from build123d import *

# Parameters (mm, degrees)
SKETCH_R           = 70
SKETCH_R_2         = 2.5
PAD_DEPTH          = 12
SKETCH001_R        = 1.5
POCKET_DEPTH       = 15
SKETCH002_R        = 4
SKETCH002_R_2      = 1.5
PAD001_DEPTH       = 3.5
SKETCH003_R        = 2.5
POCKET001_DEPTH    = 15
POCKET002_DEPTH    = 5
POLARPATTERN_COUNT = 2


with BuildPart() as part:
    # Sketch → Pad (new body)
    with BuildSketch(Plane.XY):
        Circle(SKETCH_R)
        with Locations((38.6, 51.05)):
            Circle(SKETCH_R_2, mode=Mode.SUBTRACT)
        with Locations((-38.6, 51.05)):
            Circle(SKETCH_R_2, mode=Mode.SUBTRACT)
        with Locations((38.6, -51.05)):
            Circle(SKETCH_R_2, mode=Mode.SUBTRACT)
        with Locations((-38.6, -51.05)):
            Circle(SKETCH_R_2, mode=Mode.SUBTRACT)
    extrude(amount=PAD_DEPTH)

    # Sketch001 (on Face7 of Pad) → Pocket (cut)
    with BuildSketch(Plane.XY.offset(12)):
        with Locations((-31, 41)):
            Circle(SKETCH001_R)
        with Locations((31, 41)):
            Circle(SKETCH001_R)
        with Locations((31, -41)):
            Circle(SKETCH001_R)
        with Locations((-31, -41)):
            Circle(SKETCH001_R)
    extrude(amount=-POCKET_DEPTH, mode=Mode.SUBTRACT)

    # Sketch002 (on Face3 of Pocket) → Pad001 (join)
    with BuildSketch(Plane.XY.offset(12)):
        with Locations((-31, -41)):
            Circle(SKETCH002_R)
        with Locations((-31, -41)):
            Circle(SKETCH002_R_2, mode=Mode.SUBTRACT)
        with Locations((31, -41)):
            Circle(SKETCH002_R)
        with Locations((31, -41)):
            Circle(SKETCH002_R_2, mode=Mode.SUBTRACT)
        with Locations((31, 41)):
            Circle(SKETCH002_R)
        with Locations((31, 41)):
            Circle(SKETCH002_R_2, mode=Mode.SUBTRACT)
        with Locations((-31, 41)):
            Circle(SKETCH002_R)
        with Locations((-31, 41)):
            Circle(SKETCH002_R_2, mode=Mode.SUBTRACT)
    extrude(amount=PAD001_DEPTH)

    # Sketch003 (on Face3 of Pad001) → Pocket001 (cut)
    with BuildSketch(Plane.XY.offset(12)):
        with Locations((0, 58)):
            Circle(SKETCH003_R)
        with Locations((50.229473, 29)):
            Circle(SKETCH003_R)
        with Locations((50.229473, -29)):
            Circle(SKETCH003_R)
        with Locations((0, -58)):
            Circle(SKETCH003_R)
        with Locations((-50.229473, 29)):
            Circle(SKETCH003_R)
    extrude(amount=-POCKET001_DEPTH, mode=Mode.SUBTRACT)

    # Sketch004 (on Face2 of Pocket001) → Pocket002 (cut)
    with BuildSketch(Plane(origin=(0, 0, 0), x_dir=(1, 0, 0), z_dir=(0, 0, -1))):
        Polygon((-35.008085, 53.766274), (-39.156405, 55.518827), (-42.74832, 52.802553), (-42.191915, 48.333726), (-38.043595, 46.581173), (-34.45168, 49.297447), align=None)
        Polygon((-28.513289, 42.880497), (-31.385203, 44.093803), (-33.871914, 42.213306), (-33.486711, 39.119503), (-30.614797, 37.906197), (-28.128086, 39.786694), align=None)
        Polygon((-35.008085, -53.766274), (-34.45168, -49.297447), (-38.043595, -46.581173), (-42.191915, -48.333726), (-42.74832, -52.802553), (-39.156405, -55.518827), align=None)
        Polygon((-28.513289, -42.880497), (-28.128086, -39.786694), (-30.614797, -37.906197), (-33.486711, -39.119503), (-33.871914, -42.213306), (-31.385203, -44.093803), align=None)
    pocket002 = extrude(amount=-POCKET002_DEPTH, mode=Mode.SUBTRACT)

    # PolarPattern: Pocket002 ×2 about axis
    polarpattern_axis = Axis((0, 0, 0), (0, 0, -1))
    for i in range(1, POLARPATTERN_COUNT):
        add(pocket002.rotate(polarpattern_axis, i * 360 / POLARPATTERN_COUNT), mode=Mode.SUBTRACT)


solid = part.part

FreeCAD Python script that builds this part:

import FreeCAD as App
import Part
import Sketcher
Q = App.Units.Quantity


def add_polygon(sketch, points):
    """Adds a closed chain of lines whose ends are joined by coincident constraints."""
    first, n = sketch.GeometryCount, len(points)
    for a, b in zip(points, points[1:] + points[:1]):
        sketch.addGeometry(Part.LineSegment(App.Vector(*a, 0), App.Vector(*b, 0)), False)
    for i in range(n):
        sketch.addConstraint(Sketcher.Constraint("Coincident", first + i, 2, first + (i + 1) % n, 1))

doc = App.newDocument("Part")
body = doc.addObject("PartDesign::Body", "Body")

# Sketch on XY plane
sketch1 = body.newObject("Sketcher::SketchObject", "Sketch")
sketch1.AttachmentSupport = (doc.getObject("XY_Plane"), [""])
sketch1.MapMode = "FlatFace"
sketch1.addGeometry([
    Part.Circle(App.Vector(0, 0, 0), App.Vector(0, 0, 1), 70),  # 0
    Part.Circle(App.Vector(-38.6, -51, 0), App.Vector(0, 0, 1), 2.5),  # 1
    Part.Circle(App.Vector(38.6, -51, 0), App.Vector(0, 0, 1), 2.5),  # 2
    Part.Circle(App.Vector(-38.6, 51, 0), App.Vector(0, 0, 1), 2.5),  # 3
    Part.Circle(App.Vector(38.6, 51, 0), App.Vector(0, 0, 1), 2.5),  # 4
], False)
sketch1.addConstraint([
    Sketcher.Constraint("Coincident", 0, 3, -1, 1),
    Sketcher.Constraint("Equal", 1, 2),
    Sketcher.Constraint("Equal", 2, 3),
    Sketcher.Constraint("Equal", 3, 4),
    Sketcher.Constraint("Symmetric", 2, 3, 3, 3, -1, 1),
    Sketcher.Constraint("Symmetric", 1, 3, 4, 3, -1, 1),
    Sketcher.Constraint("Symmetric", 1, 3, 2, 3, -2),
    Sketcher.Constraint("Diameter", 0, Q("140 mm")),
    Sketcher.Constraint("Diameter", 1, Q("5 mm")),
    Sketcher.Constraint("DistanceX", 1, 3, -1, 1, Q("38.6 mm")),
    Sketcher.Constraint("DistanceY", 1, 3, 3, 3, Q("102.1 mm")),
])
pad1 = body.newObject("PartDesign::Pad", "Pad")
pad1.Profile = sketch1
pad1.Length = 12

# Sketch on XY plane
sketch2 = body.newObject("Sketcher::SketchObject", "Sketch001")
sketch2.AttachmentSupport = (doc.getObject("XY_Plane"), [""])
sketch2.MapMode = "FlatFace"
sketch2.AttachmentOffset = App.Placement(App.Vector(0, 0, 12), App.Rotation())
sketch2.addGeometry([
    Part.Circle(App.Vector(-31, 41, 0), App.Vector(0, 0, 1), 1.5),
    Part.Circle(App.Vector(31, 41, 0), App.Vector(0, 0, 1), 1.5),
    Part.Circle(App.Vector(31, -41, 0), App.Vector(0, 0, 1), 1.5),
    Part.Circle(App.Vector(-31, -41, 0), App.Vector(0, 0, 1), 1.5),
], False)
sketch2.addConstraint([
    Sketcher.Constraint("Equal", 0, 1),
    Sketcher.Constraint("Equal", 1, 2),
    Sketcher.Constraint("Equal", 2, 3),
    Sketcher.Constraint("Symmetric", 0, 3, 2, 3, -1, 1),
    Sketcher.Constraint("Symmetric", 1, 3, 3, 3, -1, 1),
    Sketcher.Constraint("Symmetric", 0, 3, 1, 3, -2),
    Sketcher.Constraint("Diameter", 0, Q("3 mm")),
    Sketcher.Constraint("DistanceX", 0, 3, -1, 1, Q("31 mm")),
    Sketcher.Constraint("DistanceY", -1, 1, 0, 3, Q("41 mm")),
])
pocket1 = body.newObject("PartDesign::Pocket", "Pocket")
pocket1.Profile = sketch2
pocket1.Length = 15

# Sketch on XY plane
sketch3 = body.newObject("Sketcher::SketchObject", "Sketch002")
sketch3.AttachmentSupport = (doc.getObject("XY_Plane"), [""])
sketch3.MapMode = "FlatFace"
sketch3.AttachmentOffset = App.Placement(App.Vector(0, 0, 12), App.Rotation())
sketch3.addGeometry([
    Part.Circle(App.Vector(-31, -41, 0), App.Vector(0, 0, 1), 4),  # 0
    Part.Circle(App.Vector(-31, -41, 0), App.Vector(0, 0, 1), 1.5),  # 1
    Part.Circle(App.Vector(31, -41, 0), App.Vector(0, 0, 1), 4),  # 2
    Part.Circle(App.Vector(31, -41, 0), App.Vector(0, 0, 1), 1.5),  # 3
    Part.Circle(App.Vector(31, 41, 0), App.Vector(0, 0, 1), 4),  # 4
    Part.Circle(App.Vector(31, 41, 0), App.Vector(0, 0, 1), 1.5),  # 5
    Part.Circle(App.Vector(-31, 41, 0), App.Vector(0, 0, 1), 4),  # 6
    Part.Circle(App.Vector(-31, 41, 0), App.Vector(0, 0, 1), 1.5),  # 7
], False)
sketch3.addConstraint([
    Sketcher.Constraint("Coincident", 1, 3, 0, 3),
    Sketcher.Constraint("Coincident", 3, 3, 2, 3),
    Sketcher.Constraint("Coincident", 5, 3, 4, 3),
    Sketcher.Constraint("Coincident", 7, 3, 6, 3),
    Sketcher.Constraint("Equal", 0, 2),
    Sketcher.Constraint("Equal", 1, 3),
    Sketcher.Constraint("Equal", 2, 4),
    Sketcher.Constraint("Equal", 3, 5),
    Sketcher.Constraint("Equal", 4, 6),
    Sketcher.Constraint("Equal", 5, 7),
    Sketcher.Constraint("Symmetric", 0, 3, 4, 3, -1, 1),
    Sketcher.Constraint("Symmetric", 2, 3, 6, 3, -1, 1),
    Sketcher.Constraint("Symmetric", 0, 3, 2, 3, -2),
    Sketcher.Constraint("Diameter", 0, Q("8 mm")),
    Sketcher.Constraint("Diameter", 1, Q("3 mm")),
    Sketcher.Constraint("DistanceX", 0, 3, -1, 1, Q("31 mm")),
    Sketcher.Constraint("DistanceY", 0, 3, -1, 1, Q("41 mm")),
])
pad2 = body.newObject("PartDesign::Pad", "Pad001")
pad2.Profile = sketch3
pad2.Length = 3.5

# Sketch on XY plane
sketch4 = body.newObject("Sketcher::SketchObject", "Sketch003")
sketch4.AttachmentSupport = (doc.getObject("XY_Plane"), [""])
sketch4.MapMode = "FlatFace"
sketch4.AttachmentOffset = App.Placement(App.Vector(0, 0, 12), App.Rotation())
sketch4.addGeometry([
    Part.Circle(App.Vector(0, 58, 0), App.Vector(0, 0, 1), 2.5),  # 0
    Part.Circle(App.Vector(50.2, 29, 0), App.Vector(0, 0, 1), 2.5),  # 1
    Part.Circle(App.Vector(50.2, -29, 0), App.Vector(0, 0, 1), 2.5),  # 2
    Part.Circle(App.Vector(0, -58, 0), App.Vector(0, 0, 1), 2.5),  # 3
    Part.Circle(App.Vector(-50.2, 29, 0), App.Vector(0, 0, 1), 2.5),  # 4
], False)
sketch4.addConstraint([
    Sketcher.Constraint("Equal", 0, 1),
    Sketcher.Constraint("Equal", 1, 2),
    Sketcher.Constraint("Equal", 2, 3),
    Sketcher.Constraint("Equal", 3, 4),
    Sketcher.Constraint("Symmetric", 0, 3, 3, 3, -1, 1),
    Sketcher.Constraint("Symmetric", 2, 3, 4, 3, -1, 1),
    Sketcher.Constraint("Symmetric", 1, 3, 4, 3, -2),
    Sketcher.Constraint("PointOnObject", 0, 3, -2),
    Sketcher.Constraint("Diameter", 0, Q("5 mm")),
    Sketcher.Constraint("DistanceY", -1, 1, 0, 3, Q("58 mm")),
    Sketcher.Constraint("DistanceY", -1, 1, 1, 3, Q("29 mm")),
    Sketcher.Constraint("DistanceX", -1, 1, 1, 3, Q("50.229473 mm")),
])
pocket2 = body.newObject("PartDesign::Pocket", "Pocket001")
pocket2.Profile = sketch4
pocket2.Length = 15

# Sketch on XY plane
sketch5 = body.newObject("Sketcher::SketchObject", "Sketch004")
sketch5.AttachmentSupport = (doc.getObject("XY_Plane"), [""])
sketch5.MapMode = "FlatFace"
add_polygon(sketch5, [(-35, -53.8), (-39.2, -55.5), (-42.7, -52.8), (-42.2, -48.3), (-38, -46.6), (-34.5, -49.3)])  # lines 0-5
add_polygon(sketch5, [(-28.5, -42.9), (-31.4, -44.1), (-33.9, -42.2), (-33.5, -39.1), (-30.6, -37.9), (-28.1, -39.8)])  # lines 6-11
add_polygon(sketch5, [(-35, 53.8), (-34.5, 49.3), (-38, 46.6), (-42.2, 48.3), (-42.7, 52.8), (-39.2, 55.5)])  # lines 12-17
add_polygon(sketch5, [(-28.5, 42.9), (-28.1, 39.8), (-30.6, 37.9), (-33.5, 39.1), (-33.9, 42.2), (-31.4, 44.1)])  # lines 18-23
sketch5.addConstraint([
    Sketcher.Constraint("Symmetric", 4, 2, 12, 2, -1),
    Sketcher.Constraint("Symmetric", 3, 2, 13, 2, -1),
    Sketcher.Constraint("Symmetric", 2, 2, 14, 2, -1),
    Sketcher.Constraint("Symmetric", 1, 2, 15, 2, -1),
    Sketcher.Constraint("Symmetric", 0, 2, 16, 2, -1),
    Sketcher.Constraint("Symmetric", 5, 2, 17, 2, -1),
    Sketcher.Constraint("Symmetric", 10, 2, 18, 2, -1),
    Sketcher.Constraint("Symmetric", 9, 2, 19, 2, -1),
    Sketcher.Constraint("Symmetric", 8, 2, 20, 2, -1),
    Sketcher.Constraint("Symmetric", 7, 2, 21, 2, -1),
    Sketcher.Constraint("Symmetric", 6, 2, 22, 2, -1),
    Sketcher.Constraint("Symmetric", 11, 2, 23, 2, -1),
    Sketcher.Constraint("Parallel", 0, 3),
    Sketcher.Constraint("Parallel", 1, 4),
    Sketcher.Constraint("Parallel", 2, 5),
    Sketcher.Constraint("Parallel", 3, 6),
    Sketcher.Constraint("Parallel", 4, 7),
    Sketcher.Constraint("Parallel", 5, 8),
    Sketcher.Constraint("Parallel", 6, 9),
    Sketcher.Constraint("Parallel", 7, 10),
    Sketcher.Constraint("Parallel", 8, 11),
    Sketcher.Constraint("Equal", 0, 1),
    Sketcher.Constraint("Equal", 1, 2),
    Sketcher.Constraint("Equal", 2, 3),
    Sketcher.Constraint("Equal", 6, 7),
    Sketcher.Constraint("Equal", 7, 8),
    Sketcher.Constraint("Equal", 8, 9),
    Sketcher.Constraint("DistanceX", 2, 2, 7, 2, Q("8.320001 mm")),
    Sketcher.Constraint("DistanceX", 17, 2, 18, 2, Q("6.879999 mm")),
    Sketcher.Constraint("DistanceY", 0, 2, 2, 2, Q("7.185101 mm")),
    Sketcher.Constraint("DistanceX", 0, 2, 6, 2, Q("7.771202 mm")),
    Sketcher.Constraint("DistanceY", 6, 2, 8, 2, Q("4.9743 mm")),
    Sketcher.Constraint("Distance", 1, Q("4.503332 mm")),
    Sketcher.Constraint("DistanceX", 1, 2, -1, 1, Q("42.74832 mm")),
    Sketcher.Constraint("DistanceY", 3, 2, 6, 2, Q("2.48737 mm")),
    Sketcher.Constraint("DistanceY", 8, 2, 12, 2, Q("88.41695 mm")),
])
pocket3 = body.newObject("PartDesign::Pocket", "Pocket002")
pocket3.Profile = sketch5
pocket3.Length = 5
pocket3.Reversed = True
doc.recompute()

polarpattern = body.newObject("PartDesign::PolarPattern", "PolarPattern")
polarpattern.Originals = [pocket3]
polarpattern.Axis = (doc.getObject("Z_Axis"), [""])
polarpattern.Angle = 360
polarpattern.Occurrences = 2
body.Tip = polarpattern

doc.recompute()
